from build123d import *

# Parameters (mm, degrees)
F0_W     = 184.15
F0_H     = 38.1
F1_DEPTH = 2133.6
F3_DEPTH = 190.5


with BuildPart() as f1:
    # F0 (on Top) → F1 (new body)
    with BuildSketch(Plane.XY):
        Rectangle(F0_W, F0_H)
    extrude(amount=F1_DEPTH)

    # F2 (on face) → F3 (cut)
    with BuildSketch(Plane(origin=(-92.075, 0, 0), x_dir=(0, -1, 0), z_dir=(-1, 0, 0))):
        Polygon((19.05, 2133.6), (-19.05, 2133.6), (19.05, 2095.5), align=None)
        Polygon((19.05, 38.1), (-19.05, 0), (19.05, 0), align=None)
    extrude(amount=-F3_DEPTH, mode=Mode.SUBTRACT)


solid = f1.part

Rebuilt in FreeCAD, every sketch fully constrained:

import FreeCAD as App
import Part
import Sketcher
Q = App.Units.Quantity

doc = App.newDocument("Part")
body = doc.addObject("PartDesign::Body", "Body")

sketch1 = body.newObject("Sketcher::SketchObject", "Sketch")
sketch1.AttachmentSupport = (doc.getObject("XY_Plane"), [""])
sketch1.MapMode = "FlatFace"
sketch1.addGeometry(Part.LineSegment(App.Vector(-92, 19, 0), App.Vector(-92, -19, 0)), False)
sketch1.addGeometry(Part.LineSegment(App.Vector(-92, -19, 0), App.Vector(92, -19, 0)), False)
sketch1.addGeometry(Part.LineSegment(App.Vector(92, -19, 0), App.Vector(92, 19, 0)), False)
sketch1.addGeometry(Part.LineSegment(App.Vector(92, 19, 0), App.Vector(-92, 19, 0)), False)
sketch1.addConstraint(Sketcher.Constraint("Coincident", 0, 2, 1, 1))
sketch1.addConstraint(Sketcher.Constraint("Coincident", 1, 2, 2, 1))
sketch1.addConstraint(Sketcher.Constraint("Coincident", 2, 2, 3, 1))
sketch1.addConstraint(Sketcher.Constraint("Coincident", 3, 2, 0, 1))
sketch1.addConstraint(Sketcher.Constraint("Vertical", 0))
sketch1.addConstraint(Sketcher.Constraint("Horizontal", 1))
sketch1.addConstraint(Sketcher.Constraint("Vertical", 2))
sketch1.addConstraint(Sketcher.Constraint("Horizontal", 3))
sketch1.addConstraint(Sketcher.Constraint("Symmetric", 0, 2, 2, 2, -1, 1))
sketch1.addConstraint(Sketcher.Constraint("DistanceY", 0, 2, 0, 1, Q("1.5 in")))
sketch1.addConstraint(Sketcher.Constraint("DistanceX", 1, 1, 1, 2, Q("7.25 in")))
pad1 = body.newObject("PartDesign::Pad", "Pad")
pad1.Profile = sketch1
pad1.Length = Q("84 in")

sketch2 = body.newObject("Sketcher::SketchObject", "Sketch001")
sketch2.AttachmentSupport = (doc.getObject("YZ_Plane"), [""])
sketch2.MapMode = "FlatFace"
sketch2.AttachmentOffset = App.Placement(App.Vector(0, 0, -3.625 * 25.4), App.Rotation())
sketch2.addGeometry(Part.LineSegment(App.Vector(-19, 2134, 0), App.Vector(19, 2134, 0)), False)
sketch2.addGeometry(Part.LineSegment(App.Vector(19, 2134, 0), App.Vector(-19, 2096, 0)), False)
sketch2.addGeometry(Part.LineSegment(App.Vector(-19, 2096, 0), App.Vector(-19, 2134, 0)), False)
sketch2.addGeometry(Part.LineSegment(App.Vector(-19, 38, 0), App.Vector(19, 0, 0)), False)
sketch2.addGeometry(Part.LineSegment(App.Vector(19, 0, 0), App.Vector(-19, 0, 0)), False)
sketch2.addGeometry(Part.LineSegment(App.Vector(-19, 0, 0), App.Vector(-19, 38, 0)), False)
sketch2.addConstraint(Sketcher.Constraint("Coincident", 0, 2, 1, 1))
sketch2.addConstraint(Sketcher.Constraint("Coincident", 1, 2, 2, 1))
sketch2.addConstraint(Sketcher.Constraint("Coincident", 2, 2, 0, 1))
sketch2.addConstraint(Sketcher.Constraint("Coincident", 3, 2, 4, 1))
sketch2.addConstraint(Sketcher.Constraint("Coincident", 4, 2, 5, 1))
sketch2.addConstraint(Sketcher.Constraint("Coincident", 5, 2, 3, 1))
sketch2.addConstraint(Sketcher.Constraint("Horizontal", 0))
sketch2.addConstraint(Sketcher.Constraint("Vertical", 2))
sketch2.addConstraint(Sketcher.Constraint("Horizontal", 4))
sketch2.addConstraint(Sketcher.Constraint("Vertical", 5))
sketch2.addConstraint(Sketcher.Constraint("Symmetric", 3, 2, 4, 2, -1, 1))
sketch2.addConstraint(Sketcher.Constraint("Perpendicular", 1, 3))
sketch2.addConstraint(Sketcher.Constraint("Vertical", 0, 2, 3, 2))
sketch2.addConstraint(Sketcher.Constraint("Vertical", 2, 2, 4, 2))
sketch2.addConstraint(Sketcher.Constraint("Equal", 4, 2))
sketch2.addConstraint(Sketcher.Constraint("DistanceX", 0, 1, 0, 2, Q("1.5 in")))
sketch2.addConstraint(Sketcher.Constraint("DistanceY", -1, 1, 0, 2, Q("84 in")))
pocket1 = body.newObject("PartDesign::Pocket", "Pocket")
pocket1.Profile = sketch2
pocket1.Length = Q("7.5 in")
pocket1.Reversed = True

doc.recompute()
